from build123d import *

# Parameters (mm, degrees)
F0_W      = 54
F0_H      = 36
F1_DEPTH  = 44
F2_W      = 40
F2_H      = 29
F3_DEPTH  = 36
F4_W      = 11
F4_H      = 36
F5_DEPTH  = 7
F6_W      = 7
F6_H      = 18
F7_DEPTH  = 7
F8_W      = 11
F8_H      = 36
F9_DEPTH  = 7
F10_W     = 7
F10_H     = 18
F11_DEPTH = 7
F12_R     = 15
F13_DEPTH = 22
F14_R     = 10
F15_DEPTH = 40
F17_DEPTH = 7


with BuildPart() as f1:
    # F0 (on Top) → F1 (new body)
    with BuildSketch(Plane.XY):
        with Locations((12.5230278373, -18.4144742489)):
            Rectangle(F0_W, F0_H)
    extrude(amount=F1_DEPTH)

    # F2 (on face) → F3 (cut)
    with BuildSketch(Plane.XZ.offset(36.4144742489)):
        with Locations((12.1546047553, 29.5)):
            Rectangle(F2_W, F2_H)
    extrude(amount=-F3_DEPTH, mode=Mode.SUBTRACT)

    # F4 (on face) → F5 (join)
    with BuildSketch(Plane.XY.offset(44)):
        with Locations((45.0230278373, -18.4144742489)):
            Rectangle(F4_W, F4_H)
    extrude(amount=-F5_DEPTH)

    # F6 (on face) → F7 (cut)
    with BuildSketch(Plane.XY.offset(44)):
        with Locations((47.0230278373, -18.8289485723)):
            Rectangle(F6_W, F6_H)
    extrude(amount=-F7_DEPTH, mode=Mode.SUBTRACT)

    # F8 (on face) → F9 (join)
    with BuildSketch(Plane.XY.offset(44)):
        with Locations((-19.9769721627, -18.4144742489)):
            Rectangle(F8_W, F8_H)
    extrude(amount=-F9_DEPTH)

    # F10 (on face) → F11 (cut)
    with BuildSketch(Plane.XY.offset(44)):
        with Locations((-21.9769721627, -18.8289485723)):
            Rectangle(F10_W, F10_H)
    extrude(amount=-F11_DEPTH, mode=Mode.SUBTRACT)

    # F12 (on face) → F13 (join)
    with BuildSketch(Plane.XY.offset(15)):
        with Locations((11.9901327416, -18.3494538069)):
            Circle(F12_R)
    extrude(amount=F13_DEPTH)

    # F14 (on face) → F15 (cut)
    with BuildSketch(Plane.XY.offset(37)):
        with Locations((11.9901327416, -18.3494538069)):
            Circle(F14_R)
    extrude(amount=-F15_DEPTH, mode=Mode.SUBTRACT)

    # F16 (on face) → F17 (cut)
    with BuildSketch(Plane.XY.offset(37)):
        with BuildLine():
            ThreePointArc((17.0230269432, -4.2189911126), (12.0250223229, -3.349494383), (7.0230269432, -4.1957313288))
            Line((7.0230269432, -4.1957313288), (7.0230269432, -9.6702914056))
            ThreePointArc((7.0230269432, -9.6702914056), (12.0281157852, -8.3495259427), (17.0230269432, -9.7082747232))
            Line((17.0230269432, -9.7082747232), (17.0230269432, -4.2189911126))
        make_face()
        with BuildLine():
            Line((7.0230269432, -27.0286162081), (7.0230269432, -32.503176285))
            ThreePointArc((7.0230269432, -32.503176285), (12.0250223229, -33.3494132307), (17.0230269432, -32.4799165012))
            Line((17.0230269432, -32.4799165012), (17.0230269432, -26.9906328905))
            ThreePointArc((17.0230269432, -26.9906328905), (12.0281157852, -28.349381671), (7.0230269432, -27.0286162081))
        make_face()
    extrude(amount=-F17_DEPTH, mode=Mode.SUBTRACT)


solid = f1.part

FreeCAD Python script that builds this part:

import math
import FreeCAD as App
import Part
import Sketcher
Q = App.Units.Quantity


def add_polygon(sketch, points):
    """Adds a closed chain of lines whose ends are joined by coincident constraints."""
    first, n = sketch.GeometryCount, len(points)
    for a, b in zip(points, points[1:] + points[:1]):
        sketch.addGeometry(Part.LineSegment(App.Vector(*a, 0), App.Vector(*b, 0)), False)
    for i in range(n):
        sketch.addConstraint(Sketcher.Constraint("Coincident", first + i, 2, first + (i + 1) % n, 1))

doc = App.newDocument("Part")
body = doc.addObject("PartDesign::Body", "Body")

sketch1 = body.newObject("Sketcher::SketchObject", "Sketch")
sketch1.AttachmentSupport = (doc.getObject("XY_Plane"), [""])
sketch1.MapMode = "FlatFace"
add_polygon(sketch1, [(-14, 0), (-14, -36), (40, -36), (40, 0)])
sketch1.addConstraint(Sketcher.Constraint("Vertical", 0))
sketch1.addConstraint(Sketcher.Constraint("Horizontal", 1))
sketch1.addConstraint(Sketcher.Constraint("Vertical", 2))
sketch1.addConstraint(Sketcher.Constraint("Horizontal", 3))
sketch1.addConstraint(Sketcher.Constraint("DistanceX", 1, 1, 1, 2, Q("54 mm")))
sketch1.addConstraint(Sketcher.Constraint("DistanceY", 0, 2, 0, 1, Q("36 mm")))
sketch1.addConstraint(Sketcher.Constraint("DistanceX", 0, 2, -1, 1, Q("14.476972 mm")))
sketch1.addConstraint(Sketcher.Constraint("DistanceY", 0, 2, -1, 1, Q("36.414474 mm")))
pad1 = body.newObject("PartDesign::Pad", "Pad")
pad1.Profile = sketch1
pad1.Length = 44

sketch2 = body.newObject("Sketcher::SketchObject", "Sketch001")
sketch2.AttachmentSupport = (doc.getObject("XZ_Plane"), [""])
sketch2.MapMode = "FlatFace"
sketch2.AttachmentOffset = App.Placement(App.Vector(0, 0, 36.414474), App.Rotation())
add_polygon(sketch2, [(-8, 44), (-8, 15), (32, 15), (32, 44)])
sketch2.addConstraint(Sketcher.Constraint("Vertical", 0))
sketch2.addConstraint(Sketcher.Constraint("Horizontal", 1))
sketch2.addConstraint(Sketcher.Constraint("Vertical", 2))
sketch2.addConstraint(Sketcher.Constraint("Horizontal", 3))
sketch2.addConstraint(Sketcher.Constraint("DistanceX", 1, 1, 1, 2, Q("40 mm")))
sketch2.addConstraint(Sketcher.Constraint("DistanceY", 0, 2, 0, 1, Q("29 mm")))
sketch2.addConstraint(Sketcher.Constraint("DistanceY", -1, 1, 0, 2, Q("15 mm")))
sketch2.addConstraint(Sketcher.Constraint("DistanceX", 0, 2, -1, 1, Q("7.845395 mm")))
pocket1 = body.newObject("PartDesign::Pocket", "Pocket")
pocket1.Profile = sketch2
pocket1.Length = 36

sketch3 = body.newObject("Sketcher::SketchObject", "Sketch002")
sketch3.AttachmentSupport = (doc.getObject("XY_Plane"), [""])
sketch3.MapMode = "FlatFace"
sketch3.AttachmentOffset = App.Placement(App.Vector(0, 0, 44), App.Rotation())
add_polygon(sketch3, [(40, 0), (40, -36), (51, -36), (51, 0)])
sketch3.addConstraint(Sketcher.Constraint("Vertical", 0))
sketch3.addConstraint(Sketcher.Constraint("Horizontal", 1))
sketch3.addConstraint(Sketcher.Constraint("Vertical", 2))
sketch3.addConstraint(Sketcher.Constraint("Horizontal", 3))
sketch3.addConstraint(Sketcher.Constraint("DistanceX", 1, 1, 1, 2, Q("11 mm")))
sketch3.addConstraint(Sketcher.Constraint("DistanceY", 0, 2, 0, 1, Q("36 mm")))
sketch3.addConstraint(Sketcher.Constraint("DistanceX", -1, 1, 0, 2, Q("39.523028 mm")))
sketch3.addConstraint(Sketcher.Constraint("DistanceY", 0, 2, -1, 1, Q("36.414474 mm")))
pad2 = body.newObject("PartDesign::Pad", "Pad001")
pad2.Profile = sketch3
pad2.Length = 7
pad2.Reversed = True

sketch4 = body.newObject("Sketcher::SketchObject", "Sketch003")
sketch4.AttachmentSupport = (doc.getObject("XY_Plane"), [""])
sketch4.MapMode = "FlatFace"
sketch4.AttachmentOffset = App.Placement(App.Vector(0, 0, 44), App.Rotation())
add_polygon(sketch4, [(44, -10), (44, -28), (51, -28), (51, -10)])
sketch4.addConstraint(Sketcher.Constraint("Vertical", 0))
sketch4.addConstraint(Sketcher.Constraint("Horizontal", 1))
sketch4.addConstraint(Sketcher.Constraint("Vertical", 2))
sketch4.addConstraint(Sketcher.Constraint("Horizontal", 3))
sketch4.addConstraint(Sketcher.Constraint("DistanceX", 1, 1, 1, 2, Q("7 mm")))
sketch4.addConstraint(Sketcher.Constraint("DistanceY", 0, 2, 0, 1, Q("18 mm")))
sketch4.addConstraint(Sketcher.Constraint("DistanceY", 0, 2, -1, 1, Q("27.828949 mm")))
sketch4.addConstraint(Sketcher.Constraint("DistanceX", -1, 1, 0, 2, Q("43.523028 mm")))
pocket2 = body.newObject("PartDesign::Pocket", "Pocket001")
pocket2.Profile = sketch4
pocket2.Length = 7

sketch5 = body.newObject("Sketcher::SketchObject", "Sketch004")
sketch5.AttachmentSupport = (doc.getObject("XY_Plane"), [""])
sketch5.MapMode = "FlatFace"
sketch5.AttachmentOffset = App.Placement(App.Vector(0, 0, 44), App.Rotation())
add_polygon(sketch5, [(-25, 0), (-25, -36), (-14, -36), (-14, 0)])
sketch5.addConstraint(Sketcher.Constraint("Vertical", 0))
sketch5.addConstraint(Sketcher.Constraint("Horizontal", 1))
sketch5.addConstraint(Sketcher.Constraint("Vertical", 2))
sketch5.addConstraint(Sketcher.Constraint("Horizontal", 3))
sketch5.addConstraint(Sketcher.Constraint("DistanceX", 1, 1, 1, 2, Q("11 mm")))
sketch5.addConstraint(Sketcher.Constraint("DistanceY", 0, 2, 0, 1, Q("36 mm")))
sketch5.addConstraint(Sketcher.Constraint("DistanceX", 0, 2, -1, 1, Q("25.476972 mm")))
sketch5.addConstraint(Sketcher.Constraint("DistanceY", 0, 2, -1, 1, Q("36.414474 mm")))
pad3 = body.newObject("PartDesign::Pad", "Pad002")
pad3.Profile = sketch5
pad3.Length = 7
pad3.Reversed = True

sketch6 = body.newObject("Sketcher::SketchObject", "Sketch005")
sketch6.AttachmentSupport = (doc.getObject("XY_Plane"), [""])
sketch6.MapMode = "FlatFace"
sketch6.AttachmentOffset = App.Placement(App.Vector(0, 0, 44), App.Rotation())
add_polygon(sketch6, [(-25, -10), (-25, -28), (-18, -28), (-18, -10)])
sketch6.addConstraint(Sketcher.Constraint("Vertical", 0))
sketch6.addConstraint(Sketcher.Constraint("Horizontal", 1))
sketch6.addConstraint(Sketcher.Constraint("Vertical", 2))
sketch6.addConstraint(Sketcher.Constraint("Horizontal", 3))
sketch6.addConstraint(Sketcher.Constraint("DistanceX", 1, 1, 1, 2, Q("7 mm")))
sketch6.addConstraint(Sketcher.Constraint("DistanceY", 0, 2, 0, 1, Q("18 mm")))
sketch6.addConstraint(Sketcher.Constraint("DistanceY", 0, 2, -1, 1, Q("27.828949 mm")))
sketch6.addConstraint(Sketcher.Constraint("DistanceX", 0, 2, -1, 1, Q("25.476972 mm")))
pocket3 = body.newObject("PartDesign::Pocket", "Pocket002")
pocket3.Profile = sketch6
pocket3.Length = 7

sketch7 = body.newObject("Sketcher::SketchObject", "Sketch006")
sketch7.AttachmentSupport = (doc.getObject("XY_Plane"), [""])
sketch7.MapMode = "FlatFace"
sketch7.AttachmentOffset = App.Placement(App.Vector(0, 0, 15), App.Rotation())
sketch7.addGeometry(Part.Circle(App.Vector(12, -18, 0), App.Vector(0, 0, 1), 15), False)
sketch7.addConstraint(Sketcher.Constraint("Diameter", 0, Q("30 mm")))
sketch7.addConstraint(Sketcher.Constraint("DistanceX", -1, 1, 0, 3, Q("11.990133 mm")))
sketch7.addConstraint(Sketcher.Constraint("DistanceY", 0, 3, -1, 1, Q("18.349454 mm")))
pad4 = body.newObject("PartDesign::Pad", "Pad003")
pad4.Profile = sketch7
pad4.Length = 22

sketch8 = body.newObject("Sketcher::SketchObject", "Sketch007")
sketch8.AttachmentSupport = (doc.getObject("XY_Plane"), [""])
sketch8.MapMode = "FlatFace"
sketch8.AttachmentOffset = App.Placement(App.Vector(0, 0, 37), App.Rotation())
sketch8.addGeometry(Part.Circle(App.Vector(12, -18, 0), App.Vector(0, 0, 1), 10), False)
sketch8.addConstraint(Sketcher.Constraint("Diameter", 0, Q("20 mm")))
sketch8.addConstraint(Sketcher.Constraint("DistanceX", -1, 1, 0, 3, Q("11.990133 mm")))
sketch8.addConstraint(Sketcher.Constraint("DistanceY", 0, 3, -1, 1, Q("18.349454 mm")))
pocket4 = body.newObject("PartDesign::Pocket", "Pocket003")
pocket4.Profile = sketch8
pocket4.Length = 40

sketch9 = body.newObject("Sketcher::SketchObject", "Sketch008")
sketch9.AttachmentSupport = (doc.getObject("XY_Plane"), [""])
sketch9.MapMode = "FlatFace"
sketch9.AttachmentOffset = App.Placement(App.Vector(0, 0, 37), App.Rotation())
sketch9.addGeometry(Part.ArcOfCircle(Part.Circle(App.Vector(12, -18, 0), App.Vector(0, 0, 1), 15), math.radians(70), math.radians(109)), False)
sketch9.addGeometry(Part.LineSegment(App.Vector(7, -4, 0), App.Vector(7, -10, 0)), False)
sketch9.addGeometry(Part.ArcOfCircle(Part.Circle(App.Vector(12, -18, 0), App.Vector(0, 0, 1), 10), math.radians(60), math.radians(120)), False)
sketch9.addGeometry(Part.LineSegment(App.Vector(17, -10, 0), App.Vector(17, -4, 0)), False)
sketch9.addGeometry(Part.LineSegment(App.Vector(7, -27, 0), App.Vector(7, -33, 0)), False)
sketch9.addGeometry(Part.ArcOfCircle(Part.Circle(App.Vector(12, -18, 0), App.Vector(0, 0, 1), 15), math.radians(-109), math.radians(-70)), False)
sketch9.addGeometry(Part.LineSegment(App.Vector(17, -32, 0), App.Vector(17, -27, 0)), False)
sketch9.addGeometry(Part.ArcOfCircle(Part.Circle(App.Vector(12, -18, 0), App.Vector(0, 0, 1), 10), math.radians(-120), math.radians(-60)), False)
sketch9.addConstraint(Sketcher.Constraint("Coincident", 0, 2, 1, 1))
sketch9.addConstraint(Sketcher.Constraint("Coincident", 1, 2, 2, 2))
sketch9.addConstraint(Sketcher.Constraint("Coincident", 2, 1, 3, 1))
sketch9.addConstraint(Sketcher.Constraint("Coincident", 3, 2, 0, 1))
sketch9.addConstraint(Sketcher.Constraint("Coincident", 4, 2, 5, 1))
sketch9.addConstraint(Sketcher.Constraint("Coincident", 5, 2, 6, 1))
sketch9.addConstraint(Sketcher.Constraint("Coincident", 6, 2, 7, 2))
sketch9.addConstraint(Sketcher.Constraint("Coincident", 7, 1, 4, 1))
sketch9.addConstraint(Sketcher.Constraint("Vertical", 1))
sketch9.addConstraint(Sketcher.Constraint("Vertical", 3))
sketch9.addConstraint(Sketcher.Constraint("Vertical", 4))
sketch9.addConstraint(Sketcher.Constraint("Vertical", 6))
sketch9.addConstraint(Sketcher.Constraint("Coincident", 2, 3, 0, 3))
sketch9.addConstraint(Sketcher.Constraint("Coincident", 5, 3, 0, 3))
sketch9.addConstraint(Sketcher.Constraint("Coincident", 7, 3, 0, 3))
sketch9.addConstraint(Sketcher.Constraint("Equal", 0, 5))
sketch9.addConstraint(Sketcher.Constraint("Equal", 2, 7))
sketch9.addConstraint(Sketcher.Constraint("Vertical", 1, 2, 4, 2))
sketch9.addConstraint(Sketcher.Constraint("Vertical", 3, 2, 5, 2))
sketch9.addConstraint(Sketcher.Constraint("Radius", 0, Q("15 mm")))
sketch9.addConstraint(Sketcher.Constraint("Radius", 2, Q("10 mm")))
sketch9.addConstraint(Sketcher.Constraint("DistanceX", 1, 2, 2, 1, Q("10 mm")))
sketch9.addConstraint(Sketcher.Constraint("DistanceY", 1, 2, 1, 1, Q("5.47456 mm")))
sketch9.addConstraint(Sketcher.Constraint("DistanceY", 0, 2, -1, 1, Q("4.195731 mm")))
sketch9.addConstraint(Sketcher.Constraint("DistanceX", -1, 1, 0, 3, Q("11.990133 mm")))
pocket5 = body.newObject("PartDesign::Pocket", "Pocket004")
pocket5.Profile = sketch9
pocket5.Length = 7

doc.recompute()
